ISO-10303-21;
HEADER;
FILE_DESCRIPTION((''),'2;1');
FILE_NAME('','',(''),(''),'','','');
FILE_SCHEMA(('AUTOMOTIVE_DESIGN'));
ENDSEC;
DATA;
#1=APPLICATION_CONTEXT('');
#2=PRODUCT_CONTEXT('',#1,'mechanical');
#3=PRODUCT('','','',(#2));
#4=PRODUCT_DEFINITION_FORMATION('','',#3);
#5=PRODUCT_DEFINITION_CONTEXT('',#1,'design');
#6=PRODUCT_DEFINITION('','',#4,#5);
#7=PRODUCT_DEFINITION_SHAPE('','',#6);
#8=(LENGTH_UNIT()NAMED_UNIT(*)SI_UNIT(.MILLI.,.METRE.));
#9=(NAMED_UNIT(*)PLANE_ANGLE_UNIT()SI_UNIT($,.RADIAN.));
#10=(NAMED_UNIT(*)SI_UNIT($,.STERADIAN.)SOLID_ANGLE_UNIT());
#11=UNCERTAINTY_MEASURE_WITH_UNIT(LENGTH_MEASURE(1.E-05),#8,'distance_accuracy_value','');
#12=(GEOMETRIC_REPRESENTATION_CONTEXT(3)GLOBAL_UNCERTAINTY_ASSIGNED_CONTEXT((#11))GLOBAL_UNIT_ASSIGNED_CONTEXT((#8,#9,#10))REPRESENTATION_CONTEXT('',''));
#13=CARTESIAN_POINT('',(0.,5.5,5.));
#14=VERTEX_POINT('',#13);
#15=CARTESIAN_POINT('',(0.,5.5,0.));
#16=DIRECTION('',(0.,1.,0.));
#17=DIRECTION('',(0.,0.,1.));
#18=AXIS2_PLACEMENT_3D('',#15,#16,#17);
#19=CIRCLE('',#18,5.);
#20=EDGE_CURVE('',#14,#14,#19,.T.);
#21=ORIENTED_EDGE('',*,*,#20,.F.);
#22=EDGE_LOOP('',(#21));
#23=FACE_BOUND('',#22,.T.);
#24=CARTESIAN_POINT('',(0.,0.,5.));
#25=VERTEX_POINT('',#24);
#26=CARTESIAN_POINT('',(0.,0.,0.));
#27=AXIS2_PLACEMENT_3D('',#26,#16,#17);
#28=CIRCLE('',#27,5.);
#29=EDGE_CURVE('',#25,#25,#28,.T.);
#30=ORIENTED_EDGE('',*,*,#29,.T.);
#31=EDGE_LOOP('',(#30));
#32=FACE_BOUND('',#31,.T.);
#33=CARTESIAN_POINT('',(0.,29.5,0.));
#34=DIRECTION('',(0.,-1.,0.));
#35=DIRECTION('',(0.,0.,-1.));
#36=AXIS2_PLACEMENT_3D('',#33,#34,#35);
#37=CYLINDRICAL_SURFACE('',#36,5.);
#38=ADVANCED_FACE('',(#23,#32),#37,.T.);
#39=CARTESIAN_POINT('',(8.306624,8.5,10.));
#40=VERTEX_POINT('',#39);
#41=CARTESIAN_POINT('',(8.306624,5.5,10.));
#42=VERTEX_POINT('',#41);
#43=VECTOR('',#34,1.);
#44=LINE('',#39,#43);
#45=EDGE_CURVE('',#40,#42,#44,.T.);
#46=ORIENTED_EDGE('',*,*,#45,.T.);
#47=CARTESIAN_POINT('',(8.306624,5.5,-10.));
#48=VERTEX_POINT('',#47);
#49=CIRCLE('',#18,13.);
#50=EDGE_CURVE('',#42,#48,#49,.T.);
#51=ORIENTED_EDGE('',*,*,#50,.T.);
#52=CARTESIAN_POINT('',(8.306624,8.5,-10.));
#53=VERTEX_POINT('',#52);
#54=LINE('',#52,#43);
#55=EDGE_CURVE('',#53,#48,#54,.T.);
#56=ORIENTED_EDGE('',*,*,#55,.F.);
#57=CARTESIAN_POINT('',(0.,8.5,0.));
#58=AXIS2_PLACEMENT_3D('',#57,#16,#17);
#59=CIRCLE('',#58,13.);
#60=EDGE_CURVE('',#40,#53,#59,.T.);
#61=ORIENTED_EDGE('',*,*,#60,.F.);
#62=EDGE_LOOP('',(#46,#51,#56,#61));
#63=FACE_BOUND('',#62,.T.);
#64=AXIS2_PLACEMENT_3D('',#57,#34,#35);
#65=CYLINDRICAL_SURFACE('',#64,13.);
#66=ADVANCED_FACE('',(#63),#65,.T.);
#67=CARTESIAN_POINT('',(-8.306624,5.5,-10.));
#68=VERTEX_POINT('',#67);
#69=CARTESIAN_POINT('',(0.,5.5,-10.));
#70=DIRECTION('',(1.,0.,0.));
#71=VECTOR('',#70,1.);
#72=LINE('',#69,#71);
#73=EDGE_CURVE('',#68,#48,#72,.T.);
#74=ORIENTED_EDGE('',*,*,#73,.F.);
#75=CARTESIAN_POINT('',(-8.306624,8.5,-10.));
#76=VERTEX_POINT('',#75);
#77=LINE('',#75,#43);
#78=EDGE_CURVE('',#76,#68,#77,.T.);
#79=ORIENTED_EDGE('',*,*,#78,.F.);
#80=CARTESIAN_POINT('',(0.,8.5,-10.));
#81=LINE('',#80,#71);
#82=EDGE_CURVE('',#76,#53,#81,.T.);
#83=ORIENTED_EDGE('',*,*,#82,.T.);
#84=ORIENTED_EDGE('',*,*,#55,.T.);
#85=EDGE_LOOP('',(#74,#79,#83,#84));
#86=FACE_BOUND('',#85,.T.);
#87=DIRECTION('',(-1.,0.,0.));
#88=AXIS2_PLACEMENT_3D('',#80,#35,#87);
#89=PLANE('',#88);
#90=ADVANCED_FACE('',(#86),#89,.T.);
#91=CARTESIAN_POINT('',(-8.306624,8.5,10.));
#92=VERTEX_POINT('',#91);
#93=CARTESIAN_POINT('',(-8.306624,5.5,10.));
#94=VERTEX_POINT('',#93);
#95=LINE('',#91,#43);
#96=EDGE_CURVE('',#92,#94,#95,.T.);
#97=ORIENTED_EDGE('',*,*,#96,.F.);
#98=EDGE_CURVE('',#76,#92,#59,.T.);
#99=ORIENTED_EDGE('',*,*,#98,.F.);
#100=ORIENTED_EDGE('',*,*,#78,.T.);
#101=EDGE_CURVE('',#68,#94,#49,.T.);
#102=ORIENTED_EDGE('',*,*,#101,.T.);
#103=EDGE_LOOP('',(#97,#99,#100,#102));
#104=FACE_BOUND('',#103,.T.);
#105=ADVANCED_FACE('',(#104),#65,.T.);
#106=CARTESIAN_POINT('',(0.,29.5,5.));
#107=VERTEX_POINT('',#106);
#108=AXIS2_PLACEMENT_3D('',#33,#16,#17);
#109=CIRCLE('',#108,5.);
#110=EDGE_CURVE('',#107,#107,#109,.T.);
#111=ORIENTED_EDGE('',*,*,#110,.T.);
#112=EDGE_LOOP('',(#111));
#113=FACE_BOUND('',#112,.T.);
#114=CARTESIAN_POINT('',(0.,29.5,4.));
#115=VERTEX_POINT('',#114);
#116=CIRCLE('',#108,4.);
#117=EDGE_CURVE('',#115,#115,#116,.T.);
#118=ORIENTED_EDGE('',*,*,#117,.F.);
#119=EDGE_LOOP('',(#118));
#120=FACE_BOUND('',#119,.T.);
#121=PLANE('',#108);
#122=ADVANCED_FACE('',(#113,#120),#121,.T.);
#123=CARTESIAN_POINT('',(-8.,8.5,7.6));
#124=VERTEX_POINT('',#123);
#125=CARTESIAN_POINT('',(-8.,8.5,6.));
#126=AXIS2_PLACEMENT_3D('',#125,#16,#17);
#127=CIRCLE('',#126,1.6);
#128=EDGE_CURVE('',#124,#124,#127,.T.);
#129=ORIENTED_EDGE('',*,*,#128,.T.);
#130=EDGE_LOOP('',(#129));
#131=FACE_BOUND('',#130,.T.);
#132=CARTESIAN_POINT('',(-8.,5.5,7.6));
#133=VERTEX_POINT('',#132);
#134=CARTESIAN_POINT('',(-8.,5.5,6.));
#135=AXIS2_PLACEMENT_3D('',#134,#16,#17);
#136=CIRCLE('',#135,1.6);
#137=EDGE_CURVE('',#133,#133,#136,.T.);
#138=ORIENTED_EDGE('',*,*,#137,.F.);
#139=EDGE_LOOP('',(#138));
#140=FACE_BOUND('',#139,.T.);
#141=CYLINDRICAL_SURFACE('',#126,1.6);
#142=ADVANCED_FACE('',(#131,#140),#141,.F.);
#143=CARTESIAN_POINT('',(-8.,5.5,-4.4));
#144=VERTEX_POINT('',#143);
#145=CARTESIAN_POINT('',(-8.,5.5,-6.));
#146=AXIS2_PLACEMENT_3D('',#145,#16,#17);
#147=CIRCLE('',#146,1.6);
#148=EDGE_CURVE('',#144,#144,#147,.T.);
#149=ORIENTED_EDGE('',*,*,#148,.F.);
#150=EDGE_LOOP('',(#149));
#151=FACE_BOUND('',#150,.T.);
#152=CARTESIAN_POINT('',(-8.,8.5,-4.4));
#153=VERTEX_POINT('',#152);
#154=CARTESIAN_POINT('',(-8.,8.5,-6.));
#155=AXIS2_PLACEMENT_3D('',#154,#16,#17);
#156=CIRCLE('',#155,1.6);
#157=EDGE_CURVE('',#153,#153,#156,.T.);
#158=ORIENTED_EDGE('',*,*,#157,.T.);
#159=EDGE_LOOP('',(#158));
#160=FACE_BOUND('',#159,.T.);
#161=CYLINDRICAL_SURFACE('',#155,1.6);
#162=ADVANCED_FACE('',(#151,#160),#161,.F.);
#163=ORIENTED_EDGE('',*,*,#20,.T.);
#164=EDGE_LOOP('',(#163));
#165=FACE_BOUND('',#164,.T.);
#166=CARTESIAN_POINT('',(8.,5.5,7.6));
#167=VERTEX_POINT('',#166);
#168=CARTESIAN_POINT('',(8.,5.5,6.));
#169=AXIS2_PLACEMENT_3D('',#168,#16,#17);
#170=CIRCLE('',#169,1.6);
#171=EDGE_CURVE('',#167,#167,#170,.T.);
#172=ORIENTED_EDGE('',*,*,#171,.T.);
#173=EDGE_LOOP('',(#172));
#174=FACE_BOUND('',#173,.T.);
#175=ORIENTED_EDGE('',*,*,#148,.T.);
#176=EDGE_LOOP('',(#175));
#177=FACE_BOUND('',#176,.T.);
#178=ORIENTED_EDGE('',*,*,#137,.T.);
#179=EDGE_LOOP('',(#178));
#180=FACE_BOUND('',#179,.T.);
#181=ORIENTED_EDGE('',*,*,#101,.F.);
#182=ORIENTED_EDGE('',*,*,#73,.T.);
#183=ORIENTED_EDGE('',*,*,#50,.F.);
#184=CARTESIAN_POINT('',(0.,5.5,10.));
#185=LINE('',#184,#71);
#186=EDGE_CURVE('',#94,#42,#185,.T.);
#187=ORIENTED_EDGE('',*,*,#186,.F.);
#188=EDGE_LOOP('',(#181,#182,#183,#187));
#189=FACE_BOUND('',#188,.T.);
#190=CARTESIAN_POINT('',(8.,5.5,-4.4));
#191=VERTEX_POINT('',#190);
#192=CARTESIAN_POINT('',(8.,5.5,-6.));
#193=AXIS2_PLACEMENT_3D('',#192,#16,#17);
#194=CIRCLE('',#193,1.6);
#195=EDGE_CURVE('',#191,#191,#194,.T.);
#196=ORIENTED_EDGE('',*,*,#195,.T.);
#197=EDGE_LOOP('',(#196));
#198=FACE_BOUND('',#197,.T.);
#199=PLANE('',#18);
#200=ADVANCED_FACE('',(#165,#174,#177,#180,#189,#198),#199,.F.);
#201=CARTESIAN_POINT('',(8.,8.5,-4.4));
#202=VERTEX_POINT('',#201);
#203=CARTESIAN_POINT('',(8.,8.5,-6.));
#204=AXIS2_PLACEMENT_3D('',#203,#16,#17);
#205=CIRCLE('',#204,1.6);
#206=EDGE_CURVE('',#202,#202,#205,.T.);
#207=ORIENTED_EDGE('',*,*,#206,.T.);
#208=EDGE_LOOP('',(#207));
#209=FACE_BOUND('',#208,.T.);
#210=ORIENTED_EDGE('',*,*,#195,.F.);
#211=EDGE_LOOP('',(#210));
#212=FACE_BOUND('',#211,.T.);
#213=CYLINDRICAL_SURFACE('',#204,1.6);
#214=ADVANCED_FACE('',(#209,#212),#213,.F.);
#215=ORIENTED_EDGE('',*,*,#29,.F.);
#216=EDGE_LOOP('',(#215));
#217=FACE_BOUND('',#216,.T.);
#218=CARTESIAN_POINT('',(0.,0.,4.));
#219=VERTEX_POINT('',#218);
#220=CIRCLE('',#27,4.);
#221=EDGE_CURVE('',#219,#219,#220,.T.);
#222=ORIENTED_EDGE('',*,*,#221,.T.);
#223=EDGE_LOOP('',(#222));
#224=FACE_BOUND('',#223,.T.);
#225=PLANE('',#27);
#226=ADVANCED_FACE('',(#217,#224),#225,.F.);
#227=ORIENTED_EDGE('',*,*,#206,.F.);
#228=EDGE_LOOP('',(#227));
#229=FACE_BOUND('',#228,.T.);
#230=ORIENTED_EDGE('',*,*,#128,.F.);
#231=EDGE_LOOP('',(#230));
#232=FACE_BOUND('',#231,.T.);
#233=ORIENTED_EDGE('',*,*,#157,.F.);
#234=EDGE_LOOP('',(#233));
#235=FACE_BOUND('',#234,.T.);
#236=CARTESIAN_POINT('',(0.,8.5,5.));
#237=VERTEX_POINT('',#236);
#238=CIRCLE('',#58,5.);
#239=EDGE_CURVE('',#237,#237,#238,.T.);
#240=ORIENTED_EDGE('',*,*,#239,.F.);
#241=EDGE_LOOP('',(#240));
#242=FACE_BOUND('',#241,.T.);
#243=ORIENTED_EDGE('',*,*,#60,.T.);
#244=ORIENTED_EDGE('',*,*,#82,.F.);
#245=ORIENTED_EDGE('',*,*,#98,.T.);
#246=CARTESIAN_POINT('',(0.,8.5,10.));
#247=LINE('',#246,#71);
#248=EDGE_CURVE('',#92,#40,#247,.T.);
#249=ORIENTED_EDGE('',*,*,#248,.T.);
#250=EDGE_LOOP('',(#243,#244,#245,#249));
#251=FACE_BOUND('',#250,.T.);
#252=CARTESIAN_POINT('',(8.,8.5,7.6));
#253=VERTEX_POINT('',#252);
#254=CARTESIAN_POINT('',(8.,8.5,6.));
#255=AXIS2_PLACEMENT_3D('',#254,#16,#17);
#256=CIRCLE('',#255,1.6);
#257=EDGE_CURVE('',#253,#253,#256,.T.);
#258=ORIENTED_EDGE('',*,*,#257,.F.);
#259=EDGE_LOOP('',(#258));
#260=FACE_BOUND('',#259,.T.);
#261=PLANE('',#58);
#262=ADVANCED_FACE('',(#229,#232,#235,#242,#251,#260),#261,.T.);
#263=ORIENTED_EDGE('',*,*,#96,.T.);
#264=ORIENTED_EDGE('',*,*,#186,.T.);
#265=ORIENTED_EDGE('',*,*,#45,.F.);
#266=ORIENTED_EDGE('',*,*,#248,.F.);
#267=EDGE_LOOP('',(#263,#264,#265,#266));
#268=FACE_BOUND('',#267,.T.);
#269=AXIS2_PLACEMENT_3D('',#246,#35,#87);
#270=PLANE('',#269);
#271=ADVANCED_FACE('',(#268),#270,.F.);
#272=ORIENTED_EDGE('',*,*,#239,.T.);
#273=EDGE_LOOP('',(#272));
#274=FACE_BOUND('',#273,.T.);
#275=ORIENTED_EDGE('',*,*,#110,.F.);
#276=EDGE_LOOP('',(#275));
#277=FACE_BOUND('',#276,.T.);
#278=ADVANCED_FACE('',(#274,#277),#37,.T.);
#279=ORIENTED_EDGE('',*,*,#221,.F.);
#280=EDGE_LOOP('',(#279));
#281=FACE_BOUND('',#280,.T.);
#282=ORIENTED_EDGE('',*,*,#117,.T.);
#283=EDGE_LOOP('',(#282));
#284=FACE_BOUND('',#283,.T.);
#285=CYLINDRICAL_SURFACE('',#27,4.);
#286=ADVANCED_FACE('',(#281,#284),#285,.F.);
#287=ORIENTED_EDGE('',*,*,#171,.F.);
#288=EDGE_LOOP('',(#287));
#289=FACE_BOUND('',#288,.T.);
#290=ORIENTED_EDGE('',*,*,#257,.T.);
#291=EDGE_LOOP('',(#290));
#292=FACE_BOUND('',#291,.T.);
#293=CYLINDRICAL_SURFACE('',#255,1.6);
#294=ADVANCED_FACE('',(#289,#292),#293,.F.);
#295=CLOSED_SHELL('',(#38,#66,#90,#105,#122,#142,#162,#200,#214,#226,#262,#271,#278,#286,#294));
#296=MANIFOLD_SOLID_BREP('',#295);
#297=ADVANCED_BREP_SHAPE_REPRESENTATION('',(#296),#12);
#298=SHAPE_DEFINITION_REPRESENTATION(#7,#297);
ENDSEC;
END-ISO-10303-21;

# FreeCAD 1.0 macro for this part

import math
import FreeCAD as App
import Part
import Sketcher

V = App.Vector

doc = App.newDocument("Part")
body = doc.addObject("PartDesign::Body", "Body")

sketch1 = body.newObject("Sketcher::SketchObject", "Sketch")
sketch1.AttachmentSupport = (doc.getObject("XZ_Plane"), [""])
sketch1.MapMode = "FlatFace"
sketch1.addGeometry(Part.Circle(V(0, 0, 0), V(0, 0, 1), 5), False)
sketch1.addConstraint(Sketcher.Constraint("Coincident", 0, 3, -1, 1))
sketch1.addConstraint(Sketcher.Constraint("Diameter", 0, 10.0))
pad1 = body.newObject("PartDesign::Pad", "Pad")
pad1.Profile = sketch1
pad1.Length = 29.5
pad1.Reversed = True

sketch2 = body.newObject("Sketcher::SketchObject", "Sketch001")
sketch2.AttachmentSupport = (doc.getObject("XZ_Plane"), [""])
sketch2.MapMode = "FlatFace"
sketch2.AttachmentOffset = App.Placement(V(0, 0, -5.5), App.Rotation())
sketch2.addGeometry(Part.LineSegment(V(8, -10, 0), V(-8, -10, 0)), False)
sketch2.addGeometry(Part.ArcOfCircle(Part.Circle(V(0, 0, 0), V(0, 0, 1), 13), math.radians(180), math.radians(230)), False)
sketch2.addGeometry(Part.ArcOfCircle(Part.Circle(V(0, 0, 0), V(0, 0, 1), 13), math.radians(130), math.radians(180)), False)
sketch2.addGeometry(Part.LineSegment(V(-8, 10, 0), V(8, 10, 0)), False)
sketch2.addGeometry(Part.ArcOfCircle(Part.Circle(V(0, 0, 0), V(0, 0, 1), 13), math.radians(0), math.radians(50)), False)
sketch2.addGeometry(Part.ArcOfCircle(Part.Circle(V(0, 0, 0), V(0, 0, 1), 13), math.radians(-50), math.radians(0)), False)
sketch2.addConstraint(Sketcher.Constraint("Coincident", 0, 2, 1, 2))
sketch2.addConstraint(Sketcher.Constraint("Tangent", 1, 1, 2, 2))
sketch2.addConstraint(Sketcher.Constraint("Coincident", 2, 1, 3, 1))
sketch2.addConstraint(Sketcher.Constraint("Coincident", 3, 2, 4, 2))
sketch2.addConstraint(Sketcher.Constraint("Tangent", 4, 1, 5, 2))
sketch2.addConstraint(Sketcher.Constraint("Coincident", 5, 1, 0, 1))
sketch2.addConstraint(Sketcher.Constraint("Horizontal", 0))
sketch2.addConstraint(Sketcher.Constraint("Horizontal", 3))
sketch2.addConstraint(Sketcher.Constraint("Coincident", 1, 3, -1, 1))
sketch2.addConstraint(Sketcher.Constraint("Coincident", 4, 3, -1, 1))
sketch2.addConstraint(Sketcher.Constraint("Equal", 1, 2))
sketch2.addConstraint(Sketcher.Constraint("Equal", 2, 4))
sketch2.addConstraint(Sketcher.Constraint("Equal", 4, 5))
sketch2.addConstraint(Sketcher.Constraint("PointOnObject", 1, 1, -1))
sketch2.addConstraint(Sketcher.Constraint("PointOnObject", 4, 1, -1))
sketch2.addConstraint(Sketcher.Constraint("Vertical", 0, 2, 2, 1))
sketch2.addConstraint(Sketcher.Constraint("Radius", 1, 13.0))
sketch2.addConstraint(Sketcher.Constraint("DistanceY", 0, 2, -1, 1, 10.0))
pad2 = body.newObject("PartDesign::Pad", "Pad001")
pad2.Profile = sketch2
pad2.Length = 3
pad2.Reversed = True

sketch3 = body.newObject("Sketcher::SketchObject", "Sketch002")
sketch3.AttachmentSupport = (doc.getObject("XZ_Plane"), [""])
sketch3.MapMode = "FlatFace"
sketch3.AttachmentOffset = App.Placement(V(0, 0, -29.5), App.Rotation())
sketch3.addGeometry(Part.Circle(V(0, 0, 0), V(0, 0, 1), 4), False)
sketch3.addConstraint(Sketcher.Constraint("Coincident", 0, 3, -1, 1))
sketch3.addConstraint(Sketcher.Constraint("Diameter", 0, 8.0))
pocket1 = body.newObject("PartDesign::Pocket", "Pocket")
pocket1.Profile = sketch3
pocket1.Type = "ThroughAll"
pocket1.Reversed = True

sketch4 = body.newObject("Sketcher::SketchObject", "Sketch003")
sketch4.AttachmentSupport = (doc.getObject("XZ_Plane"), [""])
sketch4.MapMode = "FlatFace"
sketch4.AttachmentOffset = App.Placement(V(0, 0, -8.5), App.Rotation())
sketch4.addGeometry(Part.Circle(V(8, 6, 0), V(0, 0, 1), 1.6), False)
sketch4.addGeometry(Part.Circle(V(8, -6, 0), V(0, 0, 1), 1.6), False)
sketch4.addGeometry(Part.Circle(V(-8, -6, 0), V(0, 0, 1), 1.6), False)
sketch4.addGeometry(Part.Circle(V(-8, 6, 0), V(0, 0, 1), 1.6), False)
sketch4.addConstraint(Sketcher.Constraint("Equal", 0, 1))
sketch4.addConstraint(Sketcher.Constraint("Equal", 1, 2))
sketch4.addConstraint(Sketcher.Constraint("Equal", 2, 3))
sketch4.addConstraint(Sketcher.Constraint("Symmetric", 0, 3, 2, 3, -1, 1))
sketch4.addConstraint(Sketcher.Constraint("Symmetric", 1, 3, 3, 3, -1, 1))
sketch4.addConstraint(Sketcher.Constraint("Symmetric", 1, 3, 2, 3, -2))
sketch4.addConstraint(Sketcher.Constraint("Diameter", 0, 3.2))
sketch4.addConstraint(Sketcher.Constraint("DistanceX", -1, 1, 0, 3, 8.0))
sketch4.addConstraint(Sketcher.Constraint("DistanceY", -1, 1, 0, 3, 6.0))
doc.recompute()
hole = body.newObject("PartDesign::Hole", "Hole")
hole.Profile = sketch4
hole.ThreadType = "None"
hole.Diameter = 3.2
hole.DepthType = "ThroughAll"
hole.Reversed = True

doc.recompute()
